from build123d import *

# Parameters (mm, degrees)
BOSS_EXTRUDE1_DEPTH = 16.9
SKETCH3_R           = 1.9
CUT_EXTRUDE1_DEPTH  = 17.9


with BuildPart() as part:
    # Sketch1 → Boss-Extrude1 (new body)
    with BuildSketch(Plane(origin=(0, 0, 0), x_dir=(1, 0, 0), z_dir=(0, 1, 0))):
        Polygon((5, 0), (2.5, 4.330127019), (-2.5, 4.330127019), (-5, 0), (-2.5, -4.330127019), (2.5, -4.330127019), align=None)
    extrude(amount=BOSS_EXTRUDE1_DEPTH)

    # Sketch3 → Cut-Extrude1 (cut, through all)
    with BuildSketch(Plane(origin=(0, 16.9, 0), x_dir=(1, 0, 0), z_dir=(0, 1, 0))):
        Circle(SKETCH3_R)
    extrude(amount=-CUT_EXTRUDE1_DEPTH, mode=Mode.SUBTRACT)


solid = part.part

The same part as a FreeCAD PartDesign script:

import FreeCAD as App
import Part
import Sketcher
Q = App.Units.Quantity


def add_polygon(sketch, points):
    """Adds a closed chain of lines whose ends are joined by coincident constraints."""
    first, n = sketch.GeometryCount, len(points)
    for a, b in zip(points, points[1:] + points[:1]):
        sketch.addGeometry(Part.LineSegment(App.Vector(*a, 0), App.Vector(*b, 0)), False)
    for i in range(n):
        sketch.addConstraint(Sketcher.Constraint("Coincident", first + i, 2, first + (i + 1) % n, 1))

doc = App.newDocument("Part")
body = doc.addObject("PartDesign::Body", "Body")

# Sketch on XZ plane
sketch1 = body.newObject("Sketcher::SketchObject", "Sketch")
sketch1.AttachmentSupport = (doc.getObject("XZ_Plane"), [""])
sketch1.MapMode = "FlatFace"
add_polygon(sketch1, [(5, 0), (2.5, -4.330127), (-2.5, -4.330127), (-5, 0), (-2.5, 4.330127), (2.5, 4.330127)])  # lines 0-5
sketch1.addConstraint([
    Sketcher.Constraint("Horizontal", 1),
    Sketcher.Constraint("Horizontal", 4),
    Sketcher.Constraint("Symmetric", 0, 2, 3, 2, -1, 1),
    Sketcher.Constraint("Symmetric", 2, 2, 5, 2, -1, 1),
    Sketcher.Constraint("PointOnObject", 2, 2, -1),
    Sketcher.Constraint("Parallel", 2, 5),
    Sketcher.Constraint("Vertical", 1, 2, 3, 2),
    Sketcher.Constraint("DistanceX", 1, 2, 1, 1, Q("5 mm")),
    Sketcher.Constraint("Angle", 0, Q("-120 deg")),
    Sketcher.Constraint("Distance", 0, Q("5 mm")),
])
pad1 = body.newObject("PartDesign::Pad", "Pad")
pad1.Profile = sketch1
pad1.Length = 16.9
pad1.Reversed = True

# Sketch on XZ plane
sketch2 = body.newObject("Sketcher::SketchObject", "Sketch001")
sketch2.AttachmentSupport = (doc.getObject("XZ_Plane"), [""])
sketch2.MapMode = "FlatFace"
sketch2.AttachmentOffset = App.Placement(App.Vector(0, 0, -16.9), App.Rotation())
sketch2.addGeometry(Part.Circle(App.Vector(0, 0, 0), App.Vector(0, 0, 1), 1.9), False)
sketch2.addConstraint([
    Sketcher.Constraint("Coincident", 0, 3, -1, 1),
    Sketcher.Constraint("Diameter", 0, Q("3.8 mm")),
])
pocket1 = body.newObject("PartDesign::Pocket", "Pocket")
pocket1.Profile = sketch2
pocket1.Type = "ThroughAll"
pocket1.Reversed = True

doc.recompute()
